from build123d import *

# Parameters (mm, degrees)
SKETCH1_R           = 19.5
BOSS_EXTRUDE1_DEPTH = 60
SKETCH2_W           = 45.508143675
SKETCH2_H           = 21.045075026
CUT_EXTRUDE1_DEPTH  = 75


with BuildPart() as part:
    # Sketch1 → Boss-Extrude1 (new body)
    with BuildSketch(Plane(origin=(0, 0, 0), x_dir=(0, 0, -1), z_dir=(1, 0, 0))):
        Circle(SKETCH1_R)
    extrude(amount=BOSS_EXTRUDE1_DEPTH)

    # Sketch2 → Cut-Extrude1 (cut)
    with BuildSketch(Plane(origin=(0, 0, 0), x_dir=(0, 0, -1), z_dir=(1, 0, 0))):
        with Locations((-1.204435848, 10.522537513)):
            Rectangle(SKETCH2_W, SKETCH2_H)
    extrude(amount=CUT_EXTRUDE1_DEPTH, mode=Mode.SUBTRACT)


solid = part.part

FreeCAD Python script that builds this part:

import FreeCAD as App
import Part
import Sketcher

V = App.Vector
Q = App.Units.Quantity


def add_polygon(sketch, points):
    """Adds a closed chain of lines whose ends are joined by coincident constraints."""
    first, n = sketch.GeometryCount, len(points)
    for a, b in zip(points, points[1:] + points[:1]):
        sketch.addGeometry(Part.LineSegment(App.Vector(*a, 0), App.Vector(*b, 0)), False)
    for i in range(n):
        sketch.addConstraint(Sketcher.Constraint("Coincident", first + i, 2, first + (i + 1) % n, 1))

doc = App.newDocument("Part")
body = doc.addObject("PartDesign::Body", "Body")

# Sketch on YZ plane
sketch1 = body.newObject("Sketcher::SketchObject", "Sketch")
sketch1.AttachmentSupport = (doc.getObject("YZ_Plane"), [""])
sketch1.MapMode = "FlatFace"
sketch1.addGeometry(Part.Circle(V(0, 0, 0), V(0, 0, 1), 20), False)
sketch1.addConstraint(Sketcher.Constraint("Coincident", 0, 3, -1, 1))
sketch1.addConstraint(Sketcher.Constraint("Diameter", 0, Q("39 mm")))
pad1 = body.newObject("PartDesign::Pad", "Pad")
pad1.Profile = sketch1
pad1.Length = 60

# Sketch on YZ plane
sketch2 = body.newObject("Sketcher::SketchObject", "Sketch001")
sketch2.AttachmentSupport = (doc.getObject("YZ_Plane"), [""])
sketch2.MapMode = "FlatFace"
add_polygon(sketch2, [(21, 24), (0, 24), (0, -22), (21, -22)])  # lines 0-3
sketch2.addConstraint(Sketcher.Constraint("Horizontal", 0))
sketch2.addConstraint(Sketcher.Constraint("Vertical", 1))
sketch2.addConstraint(Sketcher.Constraint("Horizontal", 2))
sketch2.addConstraint(Sketcher.Constraint("Vertical", 3))
sketch2.addConstraint(Sketcher.Constraint("PointOnObject", 0, 2, -2))
sketch2.addConstraint(Sketcher.Constraint("DistanceX", 0, 2, 0, 1, Q("21.045075 mm")))
sketch2.addConstraint(Sketcher.Constraint("DistanceY", 1, 2, 1, 1, Q("45.508144 mm")))
sketch2.addConstraint(Sketcher.Constraint("DistanceY", -1, 1, 0, 2, Q("23.958508 mm")))
pocket1 = body.newObject("PartDesign::Pocket", "Pocket")
pocket1.Profile = sketch2
pocket1.Length = 75
pocket1.Reversed = True

doc.recompute()
